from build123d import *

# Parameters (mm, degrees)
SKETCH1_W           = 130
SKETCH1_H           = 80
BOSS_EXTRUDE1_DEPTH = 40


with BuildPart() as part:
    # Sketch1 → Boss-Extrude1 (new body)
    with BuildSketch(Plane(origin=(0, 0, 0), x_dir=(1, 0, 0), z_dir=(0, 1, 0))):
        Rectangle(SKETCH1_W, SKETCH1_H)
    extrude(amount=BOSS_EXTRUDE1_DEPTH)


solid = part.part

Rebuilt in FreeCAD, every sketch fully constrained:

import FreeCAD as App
import Part
import Sketcher


def add_polygon(sketch, points):
    """Adds a closed chain of lines whose ends are joined by coincident constraints."""
    first, n = sketch.GeometryCount, len(points)
    for a, b in zip(points, points[1:] + points[:1]):
        sketch.addGeometry(Part.LineSegment(App.Vector(*a, 0), App.Vector(*b, 0)), False)
    for i in range(n):
        sketch.addConstraint(Sketcher.Constraint("Coincident", first + i, 2, first + (i + 1) % n, 1))

doc = App.newDocument("Part")
body = doc.addObject("PartDesign::Body", "Body")

sketch1 = body.newObject("Sketcher::SketchObject", "Sketch")
sketch1.AttachmentSupport = (doc.getObject("XZ_Plane"), [""])
sketch1.MapMode = "FlatFace"
add_polygon(sketch1, [(-65, -40), (-65, 40), (65, 40), (65, -40)])
sketch1.addConstraint([
    Sketcher.Constraint("Vertical", 0),
    Sketcher.Constraint("Horizontal", 1),
    Sketcher.Constraint("Vertical", 2),
    Sketcher.Constraint("Horizontal", 3),
    Sketcher.Constraint("Symmetric", 0, 2, 2, 2, -1, 1),
    Sketcher.Constraint("DistanceX", 1, 1, 1, 2, 130.0),
    Sketcher.Constraint("DistanceY", 0, 1, 0, 2, 80.0),
])
pad1 = body.newObject("PartDesign::Pad", "Pad")
pad1.Profile = sketch1
pad1.Length = 40
pad1.Reversed = True

doc.recompute()
